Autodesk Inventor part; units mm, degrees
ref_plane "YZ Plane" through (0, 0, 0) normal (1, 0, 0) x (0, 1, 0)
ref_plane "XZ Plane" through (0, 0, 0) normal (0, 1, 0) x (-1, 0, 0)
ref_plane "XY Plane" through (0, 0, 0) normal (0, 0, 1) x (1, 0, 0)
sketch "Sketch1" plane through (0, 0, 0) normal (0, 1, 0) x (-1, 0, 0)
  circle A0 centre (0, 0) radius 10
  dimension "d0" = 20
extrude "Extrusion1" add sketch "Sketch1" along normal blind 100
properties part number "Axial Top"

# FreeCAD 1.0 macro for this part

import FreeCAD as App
import Part
import Sketcher
from FreeCAD import Vector
Q = App.Units.Quantity

doc = App.newDocument("Part")
params = doc.addObject("Spreadsheet::Sheet", "Params")
for row, (alias, value) in enumerate([
    ("pad1_length", "3.9370079 in"),
], start=1):
    params.set(f"A{row}", alias)
    params.set(f"B{row}", "=" + value)
    params.setAlias(f"B{row}", alias)

body = doc.addObject("PartDesign::Body", "Body")

# Sketch on XZ plane
sketch1 = body.newObject("Sketcher::SketchObject", "Sketch")
sketch1.AttachmentSupport = (doc.getObject("XZ_Plane"), [""])
sketch1.MapMode = "FlatFace"
sketch1.addGeometry(Part.Circle(Vector(0, 0, 0), Vector(0, 0, 1), 10), False)
sketch1.addConstraint(Sketcher.Constraint("Coincident", 0, 3, -1, 1))
sketch1.addConstraint(Sketcher.Constraint("Diameter", 0, Q("0.7874 in")))
pad1 = body.newObject("PartDesign::Pad", "Pad")
pad1.Profile = sketch1
pad1.setExpression("Length", "Params.pad1_length")
pad1.Reversed = True

doc.recompute()
